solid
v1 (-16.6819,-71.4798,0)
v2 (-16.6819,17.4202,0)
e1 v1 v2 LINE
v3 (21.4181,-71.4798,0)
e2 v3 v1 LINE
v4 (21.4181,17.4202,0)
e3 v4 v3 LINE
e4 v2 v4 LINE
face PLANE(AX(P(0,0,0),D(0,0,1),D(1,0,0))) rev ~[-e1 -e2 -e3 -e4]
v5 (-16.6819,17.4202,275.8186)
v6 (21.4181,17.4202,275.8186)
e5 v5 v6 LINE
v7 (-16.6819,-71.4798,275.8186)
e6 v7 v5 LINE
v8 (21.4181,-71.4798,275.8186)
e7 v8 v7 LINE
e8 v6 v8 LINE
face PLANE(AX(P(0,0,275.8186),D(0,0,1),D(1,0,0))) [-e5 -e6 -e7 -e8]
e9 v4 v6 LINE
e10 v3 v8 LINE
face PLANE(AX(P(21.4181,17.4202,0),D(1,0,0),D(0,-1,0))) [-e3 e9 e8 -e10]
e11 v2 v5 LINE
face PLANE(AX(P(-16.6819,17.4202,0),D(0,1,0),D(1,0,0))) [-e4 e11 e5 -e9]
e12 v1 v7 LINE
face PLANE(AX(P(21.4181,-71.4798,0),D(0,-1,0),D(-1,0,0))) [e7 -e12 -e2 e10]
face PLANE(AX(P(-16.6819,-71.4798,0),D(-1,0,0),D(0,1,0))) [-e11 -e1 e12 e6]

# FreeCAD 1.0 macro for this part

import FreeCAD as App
import Part
import Sketcher

V = App.Vector
Q = App.Units.Quantity


def add_polygon(sketch, points):
    """Adds a closed chain of lines whose ends are joined by coincident constraints."""
    first, n = sketch.GeometryCount, len(points)
    for a, b in zip(points, points[1:] + points[:1]):
        sketch.addGeometry(Part.LineSegment(App.Vector(*a, 0), App.Vector(*b, 0)), False)
    for i in range(n):
        sketch.addConstraint(Sketcher.Constraint("Coincident", first + i, 2, first + (i + 1) % n, 1))

doc = App.newDocument("Part")
body = doc.addObject("PartDesign::Body", "Body")

sketch1 = body.newObject("Sketcher::SketchObject", "Sketch")
sketch1.AttachmentSupport = (doc.getObject("XY_Plane"), [""])
sketch1.MapMode = "FlatFace"
add_polygon(sketch1, [(21, 17), (-17, 17), (-17, -71), (21, -71)])
sketch1.addConstraint(Sketcher.Constraint("Horizontal", 0))
sketch1.addConstraint(Sketcher.Constraint("Vertical", 1))
sketch1.addConstraint(Sketcher.Constraint("Horizontal", 2))
sketch1.addConstraint(Sketcher.Constraint("Vertical", 3))
sketch1.addConstraint(Sketcher.Constraint("DistanceX", 0, 2, 0, 1, Q("1.5 in")))
sketch1.addConstraint(Sketcher.Constraint("DistanceY", 1, 2, 1, 1, Q("3.5 in")))
sketch1.addConstraint(Sketcher.Constraint("DistanceX", 0, 2, -1, 1, 16.682))
sketch1.addConstraint(Sketcher.Constraint("DistanceY", -1, 1, 0, 2, 17.4202))
pad1 = body.newObject("PartDesign::Pad", "Pad")
pad1.Profile = sketch1
pad1.Length = Q("10.859 in")

doc.recompute()
